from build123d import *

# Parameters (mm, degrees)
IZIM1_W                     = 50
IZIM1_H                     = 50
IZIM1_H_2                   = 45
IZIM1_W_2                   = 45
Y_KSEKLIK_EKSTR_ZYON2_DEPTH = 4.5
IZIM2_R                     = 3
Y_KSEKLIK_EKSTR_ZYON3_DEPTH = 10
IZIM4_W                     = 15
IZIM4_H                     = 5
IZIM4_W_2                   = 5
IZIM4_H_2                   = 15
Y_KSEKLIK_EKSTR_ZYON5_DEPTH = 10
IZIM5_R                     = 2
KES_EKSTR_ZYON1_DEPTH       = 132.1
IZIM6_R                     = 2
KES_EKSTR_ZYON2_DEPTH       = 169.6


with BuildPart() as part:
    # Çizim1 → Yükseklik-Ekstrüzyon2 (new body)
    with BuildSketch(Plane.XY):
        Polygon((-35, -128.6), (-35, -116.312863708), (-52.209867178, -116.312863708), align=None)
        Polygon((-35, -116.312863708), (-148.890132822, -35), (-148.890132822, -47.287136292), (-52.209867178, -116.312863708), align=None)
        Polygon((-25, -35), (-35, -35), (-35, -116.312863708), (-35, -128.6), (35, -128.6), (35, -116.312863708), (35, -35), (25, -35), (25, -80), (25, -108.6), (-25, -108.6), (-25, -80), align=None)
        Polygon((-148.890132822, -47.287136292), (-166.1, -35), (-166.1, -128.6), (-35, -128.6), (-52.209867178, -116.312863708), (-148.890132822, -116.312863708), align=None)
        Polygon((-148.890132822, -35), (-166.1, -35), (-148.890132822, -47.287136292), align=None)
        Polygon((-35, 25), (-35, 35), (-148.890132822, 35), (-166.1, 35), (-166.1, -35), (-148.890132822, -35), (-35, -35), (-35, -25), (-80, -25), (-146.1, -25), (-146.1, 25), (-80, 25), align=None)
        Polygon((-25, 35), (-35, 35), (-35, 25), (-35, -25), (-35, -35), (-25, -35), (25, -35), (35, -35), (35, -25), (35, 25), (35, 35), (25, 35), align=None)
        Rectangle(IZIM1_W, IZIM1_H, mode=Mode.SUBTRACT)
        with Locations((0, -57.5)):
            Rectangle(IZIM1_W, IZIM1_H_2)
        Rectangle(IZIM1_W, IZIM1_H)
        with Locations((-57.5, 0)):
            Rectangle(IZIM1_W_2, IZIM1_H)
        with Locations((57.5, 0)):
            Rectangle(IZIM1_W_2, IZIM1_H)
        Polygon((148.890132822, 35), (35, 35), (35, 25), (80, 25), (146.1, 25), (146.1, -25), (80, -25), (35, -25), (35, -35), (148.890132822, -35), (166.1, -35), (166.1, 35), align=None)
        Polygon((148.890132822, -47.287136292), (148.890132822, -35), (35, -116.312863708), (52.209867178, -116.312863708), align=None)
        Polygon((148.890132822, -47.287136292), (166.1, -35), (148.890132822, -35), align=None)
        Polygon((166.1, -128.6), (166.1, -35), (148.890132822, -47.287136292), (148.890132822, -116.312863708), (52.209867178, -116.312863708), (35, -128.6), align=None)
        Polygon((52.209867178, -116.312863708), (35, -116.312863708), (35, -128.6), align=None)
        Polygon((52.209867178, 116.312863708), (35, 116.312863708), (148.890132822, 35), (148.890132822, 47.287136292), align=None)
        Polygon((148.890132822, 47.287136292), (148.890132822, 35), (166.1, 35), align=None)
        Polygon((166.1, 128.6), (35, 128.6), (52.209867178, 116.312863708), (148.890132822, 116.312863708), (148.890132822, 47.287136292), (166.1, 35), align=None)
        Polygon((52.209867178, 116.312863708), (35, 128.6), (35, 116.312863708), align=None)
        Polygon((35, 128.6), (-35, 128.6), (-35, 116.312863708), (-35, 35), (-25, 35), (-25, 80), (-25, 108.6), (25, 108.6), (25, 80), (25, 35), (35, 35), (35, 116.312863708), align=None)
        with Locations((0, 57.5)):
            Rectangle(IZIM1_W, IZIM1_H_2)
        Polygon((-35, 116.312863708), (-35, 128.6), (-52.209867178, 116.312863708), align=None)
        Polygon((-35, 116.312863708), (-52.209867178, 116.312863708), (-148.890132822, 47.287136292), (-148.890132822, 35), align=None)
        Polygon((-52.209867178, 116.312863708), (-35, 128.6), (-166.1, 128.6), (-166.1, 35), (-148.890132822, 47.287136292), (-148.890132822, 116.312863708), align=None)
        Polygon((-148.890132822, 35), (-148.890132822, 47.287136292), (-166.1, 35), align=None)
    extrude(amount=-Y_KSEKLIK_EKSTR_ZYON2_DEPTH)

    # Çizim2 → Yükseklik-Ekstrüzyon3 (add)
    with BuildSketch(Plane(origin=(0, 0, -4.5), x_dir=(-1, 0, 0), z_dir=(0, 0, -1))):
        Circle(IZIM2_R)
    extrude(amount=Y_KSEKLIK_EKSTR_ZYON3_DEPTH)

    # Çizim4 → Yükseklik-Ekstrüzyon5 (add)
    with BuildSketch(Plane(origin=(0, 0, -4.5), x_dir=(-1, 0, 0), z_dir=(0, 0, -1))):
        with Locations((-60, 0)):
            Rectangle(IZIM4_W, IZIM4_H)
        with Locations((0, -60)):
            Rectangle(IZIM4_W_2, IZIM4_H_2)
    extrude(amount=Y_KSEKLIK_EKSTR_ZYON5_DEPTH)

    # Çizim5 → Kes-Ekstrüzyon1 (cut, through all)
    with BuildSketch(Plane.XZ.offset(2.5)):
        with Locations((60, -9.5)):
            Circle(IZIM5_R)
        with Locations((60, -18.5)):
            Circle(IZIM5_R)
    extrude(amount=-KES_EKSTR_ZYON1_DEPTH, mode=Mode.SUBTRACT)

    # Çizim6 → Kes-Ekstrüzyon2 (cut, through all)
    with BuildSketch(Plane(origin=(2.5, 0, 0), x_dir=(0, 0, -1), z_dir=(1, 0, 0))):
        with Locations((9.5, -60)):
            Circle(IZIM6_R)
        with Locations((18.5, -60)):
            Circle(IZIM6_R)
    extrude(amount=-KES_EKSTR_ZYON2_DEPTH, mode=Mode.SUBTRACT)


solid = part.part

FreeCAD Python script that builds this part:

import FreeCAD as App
import Part
import Sketcher

V = App.Vector

doc = App.newDocument("Part")
body = doc.addObject("PartDesign::Body", "Body")

# Sketch on XY plane
sketch1 = body.newObject("Sketcher::SketchObject", "Sketch")
sketch1.AttachmentSupport = (doc.getObject("XY_Plane"), [""])
sketch1.MapMode = "FlatFace"
sketch1.addGeometry(Part.LineSegment(V(-166.1, 128.6, 0), V(-166.1, -128.6, 0)), False)
sketch1.addGeometry(Part.LineSegment(V(-166.1, -128.6, 0), V(166.1, -128.6, 0)), False)
sketch1.addGeometry(Part.LineSegment(V(166.1, -128.6, 0), V(166.1, 128.6, 0)), False)
sketch1.addGeometry(Part.LineSegment(V(166.1, 128.6, 0), V(-166.1, 128.6, 0)), False)
sketch1.addGeometry(Part.LineSegment(V(-148.890133, -116.312864, 0), V(-148.890133, -47.287136, 0)), False)
sketch1.addGeometry(Part.LineSegment(V(-148.890133, -47.287136, 0), V(-52.209867, -116.312864, 0)), False)
sketch1.addGeometry(Part.LineSegment(V(-52.209867, -116.312864, 0), V(-148.890133, -116.312864, 0)), False)
sketch1.addGeometry(Part.LineSegment(V(-148.890133, -35, 0), V(-35, -35, 0)), False)
sketch1.addGeometry(Part.LineSegment(V(-35, -35, 0), V(-35, -116.312864, 0)), False)
sketch1.addGeometry(Part.LineSegment(V(-35, -116.312864, 0), V(-148.890133, -35, 0)), False)
sketch1.addGeometry(Part.LineSegment(V(-25, -108.6, 0), V(-25, -80, 0)), False)
sketch1.addGeometry(Part.LineSegment(V(-25, -80, 0), V(25, -80, 0)), False)
sketch1.addGeometry(Part.LineSegment(V(25, -80, 0), V(25, -108.6, 0)), False)
sketch1.addGeometry(Part.LineSegment(V(25, -108.6, 0), V(-25, -108.6, 0)), False)
sketch1.addGeometry(Part.LineSegment(V(148.890133, -116.312864, 0), V(52.209867, -116.312864, 0)), False)
sketch1.addGeometry(Part.LineSegment(V(52.209867, -116.312864, 0), V(148.890133, -47.287136, 0)), False)
sketch1.addGeometry(Part.LineSegment(V(148.890133, -47.287136, 0), V(148.890133, -116.312864, 0)), False)
sketch1.addGeometry(Part.LineSegment(V(148.890133, -35, 0), V(35, -116.312864, 0)), False)
sketch1.addGeometry(Part.LineSegment(V(35, -116.312864, 0), V(35, -35, 0)), False)
sketch1.addGeometry(Part.LineSegment(V(35, -35, 0), V(148.890133, -35, 0)), False)
sketch1.addGeometry(Part.LineSegment(V(-146.1, 25, 0), V(-80, 25, 0)), False)
sketch1.addGeometry(Part.LineSegment(V(-80, 25, 0), V(-80, -25, 0)), False)
sketch1.addGeometry(Part.LineSegment(V(-80, -25, 0), V(-146.1, -25, 0)), False)
sketch1.addGeometry(Part.LineSegment(V(-146.1, -25, 0), V(-146.1, 25, 0)), False)
sketch1.addGeometry(Part.LineSegment(V(-35, 35, 0), V(-148.890133, 35, 0)), False)
sketch1.addGeometry(Part.LineSegment(V(-148.890133, 35, 0), V(-35, 116.312864, 0)), False)
sketch1.addGeometry(Part.LineSegment(V(-35, 116.312864, 0), V(-35, 35, 0)), False)
sketch1.addGeometry(Part.LineSegment(V(-52.209867, 116.312864, 0), V(-148.890133, 47.287136, 0)), False)
sketch1.addGeometry(Part.LineSegment(V(-148.890133, 47.287136, 0), V(-148.890133, 116.312864, 0)), False)
sketch1.addGeometry(Part.LineSegment(V(-148.890133, 116.312864, 0), V(-52.209867, 116.312864, 0)), False)
sketch1.addGeometry(Part.LineSegment(V(80, -25, 0), V(80, 25, 0)), False)
sketch1.addGeometry(Part.LineSegment(V(80, 25, 0), V(146.1, 25, 0)), False)
sketch1.addGeometry(Part.LineSegment(V(146.1, 25, 0), V(146.1, -25, 0)), False)
sketch1.addGeometry(Part.LineSegment(V(146.1, -25, 0), V(80, -25, 0)), False)
sketch1.addGeometry(Part.LineSegment(V(-25, 80, 0), V(-25, 108.6, 0)), False)
sketch1.addGeometry(Part.LineSegment(V(-25, 108.6, 0), V(25, 108.6, 0)), False)
sketch1.addGeometry(Part.LineSegment(V(25, 108.6, 0), V(25, 80, 0)), False)
sketch1.addGeometry(Part.LineSegment(V(25, 80, 0), V(-25, 80, 0)), False)
sketch1.addGeometry(Part.LineSegment(V(35, 116.312864, 0), V(148.890133, 35, 0)), False)
sketch1.addGeometry(Part.LineSegment(V(148.890133, 35, 0), V(35, 35, 0)), False)
sketch1.addGeometry(Part.LineSegment(V(35, 35, 0), V(35, 116.312864, 0)), False)
sketch1.addGeometry(Part.LineSegment(V(148.890133, 47.287136, 0), V(52.209867, 116.312864, 0)), False)
sketch1.addGeometry(Part.LineSegment(V(52.209867, 116.312864, 0), V(148.890133, 116.312864, 0)), False)
sketch1.addGeometry(Part.LineSegment(V(148.890133, 116.312864, 0), V(148.890133, 47.287136, 0)), False)
sketch1.addConstraint(Sketcher.Constraint("Coincident", 0, 2, 1, 1))
sketch1.addConstraint(Sketcher.Constraint("Coincident", 1, 2, 2, 1))
sketch1.addConstraint(Sketcher.Constraint("Coincident", 2, 2, 3, 1))
sketch1.addConstraint(Sketcher.Constraint("Coincident", 3, 2, 0, 1))
sketch1.addConstraint(Sketcher.Constraint("Coincident", 4, 2, 5, 1))
sketch1.addConstraint(Sketcher.Constraint("Coincident", 5, 2, 6, 1))
sketch1.addConstraint(Sketcher.Constraint("Coincident", 6, 2, 4, 1))
sketch1.addConstraint(Sketcher.Constraint("Coincident", 7, 2, 8, 1))
sketch1.addConstraint(Sketcher.Constraint("Coincident", 8, 2, 9, 1))
sketch1.addConstraint(Sketcher.Constraint("Coincident", 9, 2, 7, 1))
sketch1.addConstraint(Sketcher.Constraint("Coincident", 10, 2, 11, 1))
sketch1.addConstraint(Sketcher.Constraint("Coincident", 11, 2, 12, 1))
sketch1.addConstraint(Sketcher.Constraint("Coincident", 12, 2, 13, 1))
sketch1.addConstraint(Sketcher.Constraint("Coincident", 13, 2, 10, 1))
sketch1.addConstraint(Sketcher.Constraint("Coincident", 14, 2, 15, 1))
sketch1.addConstraint(Sketcher.Constraint("Coincident", 15, 2, 16, 1))
sketch1.addConstraint(Sketcher.Constraint("Coincident", 16, 2, 14, 1))
sketch1.addConstraint(Sketcher.Constraint("Coincident", 17, 2, 18, 1))
sketch1.addConstraint(Sketcher.Constraint("Coincident", 18, 2, 19, 1))
sketch1.addConstraint(Sketcher.Constraint("Coincident", 19, 2, 17, 1))
sketch1.addConstraint(Sketcher.Constraint("Coincident", 20, 2, 21, 1))
sketch1.addConstraint(Sketcher.Constraint("Coincident", 21, 2, 22, 1))
sketch1.addConstraint(Sketcher.Constraint("Coincident", 22, 2, 23, 1))
sketch1.addConstraint(Sketcher.Constraint("Coincident", 23, 2, 20, 1))
sketch1.addConstraint(Sketcher.Constraint("Coincident", 24, 2, 25, 1))
sketch1.addConstraint(Sketcher.Constraint("Coincident", 25, 2, 26, 1))
sketch1.addConstraint(Sketcher.Constraint("Coincident", 26, 2, 24, 1))
sketch1.addConstraint(Sketcher.Constraint("Coincident", 27, 2, 28, 1))
sketch1.addConstraint(Sketcher.Constraint("Coincident", 28, 2, 29, 1))
sketch1.addConstraint(Sketcher.Constraint("Coincident", 29, 2, 27, 1))
sketch1.addConstraint(Sketcher.Constraint("Coincident", 30, 2, 31, 1))
sketch1.addConstraint(Sketcher.Constraint("Coincident", 31, 2, 32, 1))
sketch1.addConstraint(Sketcher.Constraint("Coincident", 32, 2, 33, 1))
sketch1.addConstraint(Sketcher.Constraint("Coincident", 33, 2, 30, 1))
sketch1.addConstraint(Sketcher.Constraint("Coincident", 34, 2, 35, 1))
sketch1.addConstraint(Sketcher.Constraint("Coincident", 35, 2, 36, 1))
sketch1.addConstraint(Sketcher.Constraint("Coincident", 36, 2, 37, 1))
sketch1.addConstraint(Sketcher.Constraint("Coincident", 37, 2, 34, 1))
sketch1.addConstraint(Sketcher.Constraint("Coincident", 38, 2, 39, 1))
sketch1.addConstraint(Sketcher.Constraint("Coincident", 39, 2, 40, 1))
sketch1.addConstraint(Sketcher.Constraint("Coincident", 40, 2, 38, 1))
sketch1.addConstraint(Sketcher.Constraint("Coincident", 41, 2, 42, 1))
sketch1.addConstraint(Sketcher.Constraint("Coincident", 42, 2, 43, 1))
sketch1.addConstraint(Sketcher.Constraint("Coincident", 43, 2, 41, 1))
sketch1.addConstraint(Sketcher.Constraint("Vertical", 0))
sketch1.addConstraint(Sketcher.Constraint("Horizontal", 1))
sketch1.addConstraint(Sketcher.Constraint("Vertical", 2))
sketch1.addConstraint(Sketcher.Constraint("Horizontal", 3))
sketch1.addConstraint(Sketcher.Constraint("Vertical", 4))
sketch1.addConstraint(Sketcher.Constraint("Horizontal", 6))
sketch1.addConstraint(Sketcher.Constraint("Horizontal", 7))
sketch1.addConstraint(Sketcher.Constraint("Vertical", 8))
sketch1.addConstraint(Sketcher.Constraint("Vertical", 10))
sketch1.addConstraint(Sketcher.Constraint("Horizontal", 11))
sketch1.addConstraint(Sketcher.Constraint("Vertical", 12))
sketch1.addConstraint(Sketcher.Constraint("Horizontal", 13))
sketch1.addConstraint(Sketcher.Constraint("Horizontal", 14))
sketch1.addConstraint(Sketcher.Constraint("Vertical", 16))
sketch1.addConstraint(Sketcher.Constraint("Vertical", 18))
sketch1.addConstraint(Sketcher.Constraint("Horizontal", 19))
sketch1.addConstraint(Sketcher.Constraint("Horizontal", 20))
sketch1.addConstraint(Sketcher.Constraint("Vertical", 21))
sketch1.addConstraint(Sketcher.Constraint("Horizontal", 22))
sketch1.addConstraint(Sketcher.Constraint("Vertical", 23))
sketch1.addConstraint(Sketcher.Constraint("Horizontal", 24))
sketch1.addConstraint(Sketcher.Constraint("Vertical", 26))
sketch1.addConstraint(Sketcher.Constraint("Vertical", 28))
sketch1.addConstraint(Sketcher.Constraint("Horizontal", 29))
sketch1.addConstraint(Sketcher.Constraint("Vertical", 30))
sketch1.addConstraint(Sketcher.Constraint("Horizontal", 31))
sketch1.addConstraint(Sketcher.Constraint("Vertical", 32))
sketch1.addConstraint(Sketcher.Constraint("Horizontal", 33))
sketch1.addConstraint(Sketcher.Constraint("Vertical", 34))
sketch1.addConstraint(Sketcher.Constraint("Horizontal", 35))
sketch1.addConstraint(Sketcher.Constraint("Vertical", 36))
sketch1.addConstraint(Sketcher.Constraint("Horizontal", 37))
sketch1.addConstraint(Sketcher.Constraint("Horizontal", 39))
sketch1.addConstraint(Sketcher.Constraint("Vertical", 40))
sketch1.addConstraint(Sketcher.Constraint("Horizontal", 42))
sketch1.addConstraint(Sketcher.Constraint("Vertical", 43))
sketch1.addConstraint(Sketcher.Constraint("Symmetric", 0, 2, 2, 2, -1, 1))
sketch1.addConstraint(Sketcher.Constraint("Symmetric", 19, 2, 24, 2, -1, 1))
sketch1.addConstraint(Sketcher.Constraint("Symmetric", 17, 2, 25, 2, -1, 1))
sketch1.addConstraint(Sketcher.Constraint("Symmetric", 15, 2, 27, 2, -1, 1))
sketch1.addConstraint(Sketcher.Constraint("Symmetric", 14, 2, 29, 2, -1, 1))
sketch1.addConstraint(Sketcher.Constraint("Symmetric", 21, 2, 30, 2, -1, 1))
sketch1.addConstraint(Sketcher.Constraint("Symmetric", 23, 2, 32, 2, -1, 1))
sketch1.addConstraint(Sketcher.Constraint("Symmetric", 12, 2, 34, 2, -1, 1))
sketch1.addConstraint(Sketcher.Constraint("Symmetric", 10, 2, 36, 2, -1, 1))
sketch1.addConstraint(Sketcher.Constraint("Symmetric", 9, 2, 38, 2, -1, 1))
sketch1.addConstraint(Sketcher.Constraint("Symmetric", 8, 2, 40, 2, -1, 1))
sketch1.addConstraint(Sketcher.Constraint("Symmetric", 5, 2, 41, 2, -1, 1))
sketch1.addConstraint(Sketcher.Constraint("Symmetric", 4, 2, 43, 2, -1, 1))
sketch1.addConstraint(Sketcher.Constraint("Symmetric", 5, 2, 14, 2, -2))
sketch1.addConstraint(Sketcher.Constraint("Symmetric", 4, 2, 15, 2, -2))
sketch1.addConstraint(Sketcher.Constraint("Symmetric", 8, 2, 17, 2, -2))
sketch1.addConstraint(Sketcher.Constraint("Symmetric", 9, 2, 19, 2, -2))
sketch1.addConstraint(Sketcher.Constraint("Parallel", 5, 9))
sketch1.addConstraint(Sketcher.Constraint("Horizontal", 6, 2, 8, 2))
sketch1.addConstraint(Sketcher.Constraint("Horizontal", 23, 2, 30, 2))
sketch1.addConstraint(Sketcher.Constraint("Vertical", 6, 2, 9, 2))
sketch1.addConstraint(Sketcher.Constraint("Vertical", 13, 2, 34, 2))
sketch1.addConstraint(Sketcher.Constraint("Equal", 37, 21))
sketch1.addConstraint(Sketcher.Constraint("DistanceX", 11, 1, 11, 2, 50.0))
sketch1.addConstraint(Sketcher.Constraint("DistanceX", 1, 1, 1, 2, 332.2))
sketch1.addConstraint(Sketcher.Constraint("DistanceX", 20, 1, 20, 2, 66.1))
sketch1.addConstraint(Sketcher.Constraint("DistanceY", 0, 2, 0, 1, 257.2))
sketch1.addConstraint(Sketcher.Constraint("DistanceY", 10, 1, 10, 2, 28.6))
sketch1.addConstraint(Sketcher.Constraint("DistanceX", 7, 2, -1, 1, 35.0))
sketch1.addConstraint(Sketcher.Constraint("DistanceY", 7, 2, -1, 1, 35.0))
sketch1.addConstraint(Sketcher.Constraint("DistanceY", 10, 2, -1, 1, 80.0))
sketch1.addConstraint(Sketcher.Constraint("DistanceX", 20, 2, -1, 1, 80.0))
sketch1.addConstraint(Sketcher.Constraint("Distance", 5, 118.79236))
sketch1.addConstraint(Sketcher.Constraint("Distance", 9, 139.938358))
sketch1.addConstraint(Sketcher.Constraint("DistanceX", 6, 2, 6, 1, 96.680266))
pad1 = body.newObject("PartDesign::Pad", "Pad")
pad1.Profile = sketch1
pad1.Length = 4.5
pad1.Reversed = True

# Sketch on XY plane
sketch2 = body.newObject("Sketcher::SketchObject", "Sketch001")
sketch2.AttachmentSupport = (doc.getObject("XY_Plane"), [""])
sketch2.MapMode = "FlatFace"
sketch2.AttachmentOffset = App.Placement(V(0, 0, -4.5), App.Rotation())
sketch2.addGeometry(Part.Circle(V(0, 0, 0), V(0, 0, 1), 3), False)
sketch2.addConstraint(Sketcher.Constraint("Coincident", 0, 3, -1, 1))
sketch2.addConstraint(Sketcher.Constraint("Diameter", 0, 6.0))
pad2 = body.newObject("PartDesign::Pad", "Pad001")
pad2.Profile = sketch2
pad2.Length = 10
pad2.Reversed = True

# Sketch on XY plane
sketch3 = body.newObject("Sketcher::SketchObject", "Sketch002")
sketch3.AttachmentSupport = (doc.getObject("XY_Plane"), [""])
sketch3.MapMode = "FlatFace"
sketch3.AttachmentOffset = App.Placement(V(0, 0, -4.5), App.Rotation())
sketch3.addGeometry(Part.LineSegment(V(67.5, 2.5, 0), V(67.5, -2.5, 0)), False)
sketch3.addGeometry(Part.LineSegment(V(67.5, -2.5, 0), V(52.5, -2.5, 0)), False)
sketch3.addGeometry(Part.LineSegment(V(52.5, -2.5, 0), V(52.5, 2.5, 0)), False)
sketch3.addGeometry(Part.LineSegment(V(52.5, 2.5, 0), V(67.5, 2.5, 0)), False)
sketch3.addGeometry(Part.LineSegment(V(2.5, -52.5, 0), V(2.5, -67.5, 0)), False)
sketch3.addGeometry(Part.LineSegment(V(2.5, -67.5, 0), V(-2.5, -67.5, 0)), False)
sketch3.addGeometry(Part.LineSegment(V(-2.5, -67.5, 0), V(-2.5, -52.5, 0)), False)
sketch3.addGeometry(Part.LineSegment(V(-2.5, -52.5, 0), V(2.5, -52.5, 0)), False)
sketch3.addConstraint(Sketcher.Constraint("Coincident", 0, 2, 1, 1))
sketch3.addConstraint(Sketcher.Constraint("Coincident", 1, 2, 2, 1))
sketch3.addConstraint(Sketcher.Constraint("Coincident", 2, 2, 3, 1))
sketch3.addConstraint(Sketcher.Constraint("Coincident", 3, 2, 0, 1))
sketch3.addConstraint(Sketcher.Constraint("Coincident", 4, 2, 5, 1))
sketch3.addConstraint(Sketcher.Constraint("Coincident", 5, 2, 6, 1))
sketch3.addConstraint(Sketcher.Constraint("Coincident", 6, 2, 7, 1))
sketch3.addConstraint(Sketcher.Constraint("Coincident", 7, 2, 4, 1))
sketch3.addConstraint(Sketcher.Constraint("Vertical", 0))
sketch3.addConstraint(Sketcher.Constraint("Horizontal", 1))
sketch3.addConstraint(Sketcher.Constraint("Vertical", 2))
sketch3.addConstraint(Sketcher.Constraint("Horizontal", 3))
sketch3.addConstraint(Sketcher.Constraint("Vertical", 4))
sketch3.addConstraint(Sketcher.Constraint("Horizontal", 5))
sketch3.addConstraint(Sketcher.Constraint("Vertical", 6))
sketch3.addConstraint(Sketcher.Constraint("Horizontal", 7))
sketch3.addConstraint(Sketcher.Constraint("Equal", 7, 0))
sketch3.addConstraint(Sketcher.Constraint("Equal", 3, 4))
sketch3.addConstraint(Sketcher.Constraint("DistanceX", 1, 2, 1, 1, 15.0))
sketch3.addConstraint(Sketcher.Constraint("DistanceX", 5, 2, 5, 1, 5.0))
sketch3.addConstraint(Sketcher.Constraint("DistanceX", 4, 2, 1, 2, 50.0))
sketch3.addConstraint(Sketcher.Constraint("DistanceY", 4, 2, 1, 2, 65.0))
sketch3.addConstraint(Sketcher.Constraint("DistanceX", -1, 1, 0, 2, 67.5))
sketch3.addConstraint(Sketcher.Constraint("DistanceY", 0, 2, -1, 1, 2.5))
pad3 = body.newObject("PartDesign::Pad", "Pad002")
pad3.Profile = sketch3
pad3.Length = 10
pad3.Reversed = True

# Sketch on XZ plane
sketch4 = body.newObject("Sketcher::SketchObject", "Sketch003")
sketch4.AttachmentSupport = (doc.getObject("XZ_Plane"), [""])
sketch4.MapMode = "FlatFace"
sketch4.AttachmentOffset = App.Placement(V(0, 0, 2.5), App.Rotation())
sketch4.addGeometry(Part.Circle(V(60, -9.5, 0), V(0, 0, 1), 2), False)
sketch4.addGeometry(Part.Circle(V(60, -18.5, 0), V(0, 0, 1), 2), False)
sketch4.addConstraint(Sketcher.Constraint("Equal", 0, 1))
sketch4.addConstraint(Sketcher.Constraint("Vertical", 0, 3, 1, 3))
sketch4.addConstraint(Sketcher.Constraint("Diameter", 0, 4.0))
sketch4.addConstraint(Sketcher.Constraint("DistanceX", -1, 1, 0, 3, 60.0))
sketch4.addConstraint(Sketcher.Constraint("DistanceY", 1, 3, 0, 3, 9.0))
sketch4.addConstraint(Sketcher.Constraint("DistanceY", 0, 3, -1, 1, 9.5))
pocket1 = body.newObject("PartDesign::Pocket", "Pocket")
pocket1.Profile = sketch4
pocket1.Type = "ThroughAll"

# Sketch on YZ plane
sketch5 = body.newObject("Sketcher::SketchObject", "Sketch004")
sketch5.AttachmentSupport = (doc.getObject("YZ_Plane"), [""])
sketch5.MapMode = "FlatFace"
sketch5.AttachmentOffset = App.Placement(V(0, 0, 2.5), App.Rotation())
sketch5.addGeometry(Part.Circle(V(-60, -9.5, 0), V(0, 0, 1), 2), False)
sketch5.addGeometry(Part.Circle(V(-60, -18.5, 0), V(0, 0, 1), 2), False)
sketch5.addConstraint(Sketcher.Constraint("Equal", 0, 1))
sketch5.addConstraint(Sketcher.Constraint("Vertical", 0, 3, 1, 3))
sketch5.addConstraint(Sketcher.Constraint("Diameter", 0, 4.0))
sketch5.addConstraint(Sketcher.Constraint("DistanceX", 0, 3, -1, 1, 60.0))
sketch5.addConstraint(Sketcher.Constraint("DistanceY", 1, 3, 0, 3, 9.0))
sketch5.addConstraint(Sketcher.Constraint("DistanceY", 0, 3, -1, 1, 9.5))
pocket2 = body.newObject("PartDesign::Pocket", "Pocket001")
pocket2.Profile = sketch5
pocket2.Type = "ThroughAll"

doc.recompute()
